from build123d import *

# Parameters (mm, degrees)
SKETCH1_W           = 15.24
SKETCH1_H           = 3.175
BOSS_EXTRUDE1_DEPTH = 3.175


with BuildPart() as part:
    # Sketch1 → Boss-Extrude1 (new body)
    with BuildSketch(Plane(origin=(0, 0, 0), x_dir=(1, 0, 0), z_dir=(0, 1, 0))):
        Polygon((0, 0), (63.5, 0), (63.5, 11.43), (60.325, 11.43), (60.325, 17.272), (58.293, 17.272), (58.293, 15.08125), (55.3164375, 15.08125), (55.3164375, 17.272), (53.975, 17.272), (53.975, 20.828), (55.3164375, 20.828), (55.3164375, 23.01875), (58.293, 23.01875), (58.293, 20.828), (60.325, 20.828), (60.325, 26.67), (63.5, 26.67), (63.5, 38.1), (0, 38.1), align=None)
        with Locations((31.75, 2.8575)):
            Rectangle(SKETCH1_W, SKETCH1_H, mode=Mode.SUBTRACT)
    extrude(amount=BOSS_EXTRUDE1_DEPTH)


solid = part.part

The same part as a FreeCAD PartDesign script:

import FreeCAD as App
import Part
import Sketcher
from FreeCAD import Vector
Q = App.Units.Quantity


def add_polygon(sketch, points):
    """Adds a closed chain of lines whose ends are joined by coincident constraints."""
    first, n = sketch.GeometryCount, len(points)
    for a, b in zip(points, points[1:] + points[:1]):
        sketch.addGeometry(Part.LineSegment(App.Vector(*a, 0), App.Vector(*b, 0)), False)
    for i in range(n):
        sketch.addConstraint(Sketcher.Constraint("Coincident", first + i, 2, first + (i + 1) % n, 1))

doc = App.newDocument("Part")
body = doc.addObject("PartDesign::Body", "Body")

# Sketch on XZ plane
sketch1 = body.newObject("Sketcher::SketchObject", "Sketch")
sketch1.AttachmentSupport = (doc.getObject("XZ_Plane"), [""])
sketch1.MapMode = "FlatFace"
add_polygon(sketch1, [(0, 0), (63.5, 0), (63.5, -11.43), (60.325, -11.43), (60.325, -17.272), (58.293, -17.272), (58.293, -15.08125), (55.316437, -15.08125), (55.316437, -17.272), (53.975, -17.272), (53.975, -20.828), (55.316437, -20.828), (55.316437, -23.01875), (58.293, -23.01875), (58.293, -20.828), (60.325, -20.828), (60.325, -26.67), (63.5, -26.67), (63.5, -38.1), (0, -38.1)])  # lines 0-19
add_polygon(sketch1, [(39.37, -1.27), (24.13, -1.27), (24.13, -4.445), (39.37, -4.445)])  # lines 20-23
sketch1.addConstraint([
    Sketcher.Constraint("Horizontal", 0),
    Sketcher.Constraint("Vertical", 1),
    Sketcher.Constraint("Horizontal", 2),
    Sketcher.Constraint("Vertical", 3),
    Sketcher.Constraint("Horizontal", 4),
    Sketcher.Constraint("Vertical", 5),
    Sketcher.Constraint("Horizontal", 6),
    Sketcher.Constraint("Vertical", 7),
    Sketcher.Constraint("Horizontal", 8),
    Sketcher.Constraint("Vertical", 9),
    Sketcher.Constraint("Horizontal", 10),
    Sketcher.Constraint("Vertical", 11),
    Sketcher.Constraint("Horizontal", 12),
    Sketcher.Constraint("Vertical", 13),
    Sketcher.Constraint("Horizontal", 14),
    Sketcher.Constraint("Vertical", 15),
    Sketcher.Constraint("Horizontal", 16),
    Sketcher.Constraint("Vertical", 17),
    Sketcher.Constraint("Horizontal", 18),
    Sketcher.Constraint("Vertical", 19),
    Sketcher.Constraint("Horizontal", 20),
    Sketcher.Constraint("Vertical", 21),
    Sketcher.Constraint("Horizontal", 22),
    Sketcher.Constraint("Vertical", 23),
    Sketcher.Constraint("Coincident", 19, 2, -1, 1),
    Sketcher.Constraint("Horizontal", 4, 2, 7, 2),
    Sketcher.Constraint("Horizontal", 10, 2, 13, 2),
    Sketcher.Constraint("Vertical", 7, 2, 10, 2),
    Sketcher.Constraint("Vertical", 5, 2, 12, 2),
    Sketcher.Constraint("Vertical", 3, 2, 14, 2),
    Sketcher.Constraint("Vertical", 1, 2, 16, 2),
    Sketcher.Constraint("Equal", 7, 11),
    Sketcher.Constraint("Equal", 3, 15),
    Sketcher.Constraint("Equal", 1, 17),
    Sketcher.Constraint("Equal", 16, 21),
    Sketcher.Constraint("DistanceX", 0, 1, 0, 2, Q("2.5 in")),
    Sketcher.Constraint("DistanceX", 20, 2, 20, 1, Q("0.6 in")),
    Sketcher.Constraint("DistanceY", 19, 1, 19, 2, Q("1.5 in")),
    Sketcher.Constraint("DistanceX", 4, 2, 4, 1, Q("0.08 in")),
    Sketcher.Constraint("DistanceY", 1, 2, 1, 1, Q("0.45 in")),
    Sketcher.Constraint("DistanceY", 3, 2, 3, 1, Q("0.23 in")),
    Sketcher.Constraint("DistanceX", 2, 2, 2, 1, Q("0.125 in")),
    Sketcher.Constraint("DistanceX", -1, 1, 20, 2, Q("0.95 in")),
    Sketcher.Constraint("DistanceY", 20, 2, -1, 1, Q("0.05 in")),
    Sketcher.Constraint("DistanceX", 8, 2, 4, 2, Q("0.17 in")),
    Sketcher.Constraint("DistanceY", 5, 2, -1, 1, Q("0.59375 in")),
    Sketcher.Constraint("DistanceX", 6, 2, 6, 1, Q("2.976562 mm")),
])
pad1 = body.newObject("PartDesign::Pad", "Pad")
pad1.Profile = sketch1
pad1.Length = Q("0.125 in")
pad1.Reversed = True

doc.recompute()
